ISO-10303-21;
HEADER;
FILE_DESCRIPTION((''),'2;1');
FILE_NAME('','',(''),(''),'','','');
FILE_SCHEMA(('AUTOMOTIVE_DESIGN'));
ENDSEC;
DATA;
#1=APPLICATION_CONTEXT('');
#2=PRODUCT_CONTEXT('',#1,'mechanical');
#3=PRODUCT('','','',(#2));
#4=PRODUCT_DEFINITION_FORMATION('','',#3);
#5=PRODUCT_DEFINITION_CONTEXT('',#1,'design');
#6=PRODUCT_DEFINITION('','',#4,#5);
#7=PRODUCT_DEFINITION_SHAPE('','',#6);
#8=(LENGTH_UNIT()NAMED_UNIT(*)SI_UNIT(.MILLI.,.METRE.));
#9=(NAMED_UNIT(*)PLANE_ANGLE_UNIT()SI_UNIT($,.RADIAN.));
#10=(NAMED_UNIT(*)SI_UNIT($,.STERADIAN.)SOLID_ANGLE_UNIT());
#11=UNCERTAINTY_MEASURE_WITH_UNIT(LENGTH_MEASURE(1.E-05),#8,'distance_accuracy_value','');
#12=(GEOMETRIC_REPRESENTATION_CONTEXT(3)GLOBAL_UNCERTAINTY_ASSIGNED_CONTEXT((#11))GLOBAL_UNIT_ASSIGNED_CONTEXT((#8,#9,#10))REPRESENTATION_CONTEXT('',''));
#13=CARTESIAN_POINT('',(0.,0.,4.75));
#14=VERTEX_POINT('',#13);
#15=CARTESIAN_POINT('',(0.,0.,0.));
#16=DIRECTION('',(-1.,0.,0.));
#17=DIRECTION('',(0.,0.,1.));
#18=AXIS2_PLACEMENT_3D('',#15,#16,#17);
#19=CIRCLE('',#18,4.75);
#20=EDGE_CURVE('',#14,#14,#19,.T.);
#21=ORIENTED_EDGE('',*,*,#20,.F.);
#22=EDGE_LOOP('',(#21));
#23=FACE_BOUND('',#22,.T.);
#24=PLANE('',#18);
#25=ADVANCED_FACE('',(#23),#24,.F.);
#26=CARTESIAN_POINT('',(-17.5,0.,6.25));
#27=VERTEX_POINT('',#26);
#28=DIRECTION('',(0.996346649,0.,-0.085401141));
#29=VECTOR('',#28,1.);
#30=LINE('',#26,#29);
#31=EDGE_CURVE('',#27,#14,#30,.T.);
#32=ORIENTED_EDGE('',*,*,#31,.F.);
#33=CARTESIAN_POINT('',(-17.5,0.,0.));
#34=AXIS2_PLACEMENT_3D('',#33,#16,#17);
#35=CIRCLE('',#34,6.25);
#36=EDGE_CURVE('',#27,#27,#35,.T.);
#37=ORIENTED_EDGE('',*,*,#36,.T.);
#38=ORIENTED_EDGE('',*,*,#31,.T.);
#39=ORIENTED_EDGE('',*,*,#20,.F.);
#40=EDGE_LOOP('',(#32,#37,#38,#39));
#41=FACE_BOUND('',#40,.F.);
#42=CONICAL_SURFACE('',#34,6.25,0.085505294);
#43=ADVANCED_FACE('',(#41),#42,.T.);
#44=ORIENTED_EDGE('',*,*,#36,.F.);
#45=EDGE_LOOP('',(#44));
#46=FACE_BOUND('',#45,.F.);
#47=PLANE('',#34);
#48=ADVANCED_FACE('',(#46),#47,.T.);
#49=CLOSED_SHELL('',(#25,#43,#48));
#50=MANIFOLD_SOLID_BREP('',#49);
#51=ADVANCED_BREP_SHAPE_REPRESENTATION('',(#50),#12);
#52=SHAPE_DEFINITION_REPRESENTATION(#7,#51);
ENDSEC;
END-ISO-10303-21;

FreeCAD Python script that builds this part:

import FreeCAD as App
import Part
import Sketcher
Q = App.Units.Quantity

doc = App.newDocument("Part")
params = doc.addObject("Spreadsheet::Sheet", "Params")
for row, (alias, value) in enumerate([
    ("sketch1_width", "17.5 mm"),
    ("sketch1_height", "4.75 mm"),
    ("sketch1_height2", "6.25 mm"),
    ("revolution_angle", "360 deg"),
], start=1):
    params.set(f"A{row}", alias)
    params.set(f"B{row}", "=" + value)
    params.setAlias(f"B{row}", alias)

body = doc.addObject("PartDesign::Body", "Body")

sketch1 = doc.addObject("Sketcher::SketchObject", "Sketch")
body.addObject(sketch1)
sketch1.AttachmentSupport = (doc.XZ_Plane, [""])
sketch1.MapMode = "FlatFace"
sketch1.addGeometry([
    Part.LineSegment(App.Vector(0, 4.75, 0), App.Vector(0, 0, 0)),
    Part.LineSegment(App.Vector(0, 0, 0), App.Vector(-17.5, 0, 0)),
    Part.LineSegment(App.Vector(-17.5, 0, 0), App.Vector(-17.5, 6.25, 0)),
    Part.LineSegment(App.Vector(-17.5, 6.25, 0), App.Vector(0, 4.75, 0)),
], False)
sketch1.addConstraint([
    Sketcher.Constraint("Coincident", 0, 2, 1, 1),
    Sketcher.Constraint("Coincident", 1, 2, 2, 1),
    Sketcher.Constraint("Coincident", 2, 2, 3, 1),
    Sketcher.Constraint("Coincident", 3, 2, 0, 1),
    Sketcher.Constraint("Vertical", 0),
    Sketcher.Constraint("Horizontal", 1),
    Sketcher.Constraint("Vertical", 2),
    Sketcher.Constraint("Coincident", 0, 2, -1, 1),
    Sketcher.Constraint("DistanceX", 1, 2, 1, 1, Q("17.5 mm")),
    Sketcher.Constraint("DistanceY", 0, 2, 0, 1, Q("4.75 mm")),
    Sketcher.Constraint("DistanceY", 2, 1, 2, 2, Q("6.25 mm")),
])
sketch1.setExpression("Constraints[8]", "Params.sketch1_width")
sketch1.setExpression("Constraints[9]", "Params.sketch1_height")
sketch1.setExpression("Constraints[10]", "Params.sketch1_height2")
revolution = doc.addObject("PartDesign::Revolution", "Revolution")
body.addObject(revolution)
revolution.Profile = sketch1
revolution.ReferenceAxis = (sketch1, ["H_Axis"])
revolution.setExpression("Angle", "Params.revolution_angle")

doc.recompute()
